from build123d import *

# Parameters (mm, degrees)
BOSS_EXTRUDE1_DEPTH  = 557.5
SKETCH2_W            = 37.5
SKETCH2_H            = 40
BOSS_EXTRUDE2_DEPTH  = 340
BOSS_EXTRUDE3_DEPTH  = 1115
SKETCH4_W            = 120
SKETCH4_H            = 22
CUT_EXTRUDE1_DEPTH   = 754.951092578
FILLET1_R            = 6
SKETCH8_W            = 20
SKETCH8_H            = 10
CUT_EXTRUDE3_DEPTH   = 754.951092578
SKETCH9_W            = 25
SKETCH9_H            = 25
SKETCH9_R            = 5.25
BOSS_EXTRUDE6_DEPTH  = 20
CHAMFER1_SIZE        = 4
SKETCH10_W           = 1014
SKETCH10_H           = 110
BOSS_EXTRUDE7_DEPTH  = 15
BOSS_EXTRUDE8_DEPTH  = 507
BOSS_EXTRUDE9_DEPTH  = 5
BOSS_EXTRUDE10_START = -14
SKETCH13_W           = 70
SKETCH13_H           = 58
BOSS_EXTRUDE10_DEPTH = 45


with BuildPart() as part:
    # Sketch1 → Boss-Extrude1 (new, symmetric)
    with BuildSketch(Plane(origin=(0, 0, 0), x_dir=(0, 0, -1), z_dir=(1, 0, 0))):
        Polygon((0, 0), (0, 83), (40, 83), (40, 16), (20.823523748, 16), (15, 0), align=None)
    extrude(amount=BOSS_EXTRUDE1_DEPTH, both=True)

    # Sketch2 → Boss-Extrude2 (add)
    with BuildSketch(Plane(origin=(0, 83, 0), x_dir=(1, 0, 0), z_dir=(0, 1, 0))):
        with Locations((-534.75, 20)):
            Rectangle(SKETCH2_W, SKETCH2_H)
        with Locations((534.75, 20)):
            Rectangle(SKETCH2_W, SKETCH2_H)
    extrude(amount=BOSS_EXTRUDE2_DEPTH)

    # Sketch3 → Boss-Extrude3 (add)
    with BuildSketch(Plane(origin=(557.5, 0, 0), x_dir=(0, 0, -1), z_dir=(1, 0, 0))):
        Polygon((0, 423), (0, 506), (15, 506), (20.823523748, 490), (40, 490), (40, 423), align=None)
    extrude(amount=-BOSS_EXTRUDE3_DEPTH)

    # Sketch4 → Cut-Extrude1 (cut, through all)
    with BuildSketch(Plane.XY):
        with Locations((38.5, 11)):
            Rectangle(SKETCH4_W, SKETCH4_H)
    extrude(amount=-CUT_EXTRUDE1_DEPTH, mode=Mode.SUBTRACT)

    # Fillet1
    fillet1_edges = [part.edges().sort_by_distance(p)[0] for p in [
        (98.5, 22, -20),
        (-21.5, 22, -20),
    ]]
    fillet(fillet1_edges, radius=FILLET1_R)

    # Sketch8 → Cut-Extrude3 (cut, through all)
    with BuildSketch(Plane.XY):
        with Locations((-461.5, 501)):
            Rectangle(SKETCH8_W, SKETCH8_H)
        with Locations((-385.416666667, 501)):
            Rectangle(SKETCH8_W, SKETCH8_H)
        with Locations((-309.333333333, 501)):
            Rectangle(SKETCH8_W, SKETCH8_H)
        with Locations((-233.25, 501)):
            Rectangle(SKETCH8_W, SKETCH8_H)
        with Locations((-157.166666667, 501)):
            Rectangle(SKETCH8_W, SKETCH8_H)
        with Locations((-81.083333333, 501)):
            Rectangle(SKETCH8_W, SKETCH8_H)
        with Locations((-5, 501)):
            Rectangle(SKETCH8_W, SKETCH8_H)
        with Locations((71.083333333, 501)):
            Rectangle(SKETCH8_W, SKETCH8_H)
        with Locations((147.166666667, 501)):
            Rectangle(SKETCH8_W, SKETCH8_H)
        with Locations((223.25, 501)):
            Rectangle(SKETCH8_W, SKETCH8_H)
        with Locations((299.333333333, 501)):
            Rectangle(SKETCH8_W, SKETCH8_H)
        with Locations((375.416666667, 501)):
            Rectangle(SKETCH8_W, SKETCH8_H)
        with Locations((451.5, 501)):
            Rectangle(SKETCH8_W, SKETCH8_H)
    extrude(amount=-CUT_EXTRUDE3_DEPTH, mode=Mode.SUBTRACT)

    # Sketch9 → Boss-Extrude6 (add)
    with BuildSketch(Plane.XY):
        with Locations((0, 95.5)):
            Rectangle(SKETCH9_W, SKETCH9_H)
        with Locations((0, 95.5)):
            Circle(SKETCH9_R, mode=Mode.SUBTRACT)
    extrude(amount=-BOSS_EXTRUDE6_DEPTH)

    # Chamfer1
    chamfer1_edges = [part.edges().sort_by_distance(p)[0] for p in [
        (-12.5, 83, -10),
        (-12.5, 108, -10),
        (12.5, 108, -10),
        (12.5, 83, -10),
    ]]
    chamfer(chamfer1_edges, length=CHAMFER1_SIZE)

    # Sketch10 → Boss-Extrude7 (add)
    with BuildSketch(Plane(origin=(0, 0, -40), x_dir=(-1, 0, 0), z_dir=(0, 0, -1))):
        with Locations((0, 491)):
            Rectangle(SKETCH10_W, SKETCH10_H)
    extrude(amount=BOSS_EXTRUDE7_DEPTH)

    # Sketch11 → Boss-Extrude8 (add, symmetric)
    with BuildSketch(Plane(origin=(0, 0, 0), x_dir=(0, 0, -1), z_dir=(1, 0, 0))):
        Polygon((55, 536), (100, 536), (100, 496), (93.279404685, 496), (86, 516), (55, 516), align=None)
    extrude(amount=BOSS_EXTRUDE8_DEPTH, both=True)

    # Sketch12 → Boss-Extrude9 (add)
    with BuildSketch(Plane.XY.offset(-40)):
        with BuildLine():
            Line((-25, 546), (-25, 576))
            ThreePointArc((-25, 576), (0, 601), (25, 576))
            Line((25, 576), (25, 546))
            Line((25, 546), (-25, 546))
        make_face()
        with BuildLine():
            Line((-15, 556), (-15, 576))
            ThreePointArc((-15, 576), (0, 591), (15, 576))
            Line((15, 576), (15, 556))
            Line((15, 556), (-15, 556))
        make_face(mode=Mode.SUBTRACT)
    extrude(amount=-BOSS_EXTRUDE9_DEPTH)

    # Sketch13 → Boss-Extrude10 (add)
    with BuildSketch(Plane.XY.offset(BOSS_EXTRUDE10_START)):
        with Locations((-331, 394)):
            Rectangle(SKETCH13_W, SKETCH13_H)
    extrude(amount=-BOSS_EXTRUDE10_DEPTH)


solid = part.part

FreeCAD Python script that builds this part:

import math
import FreeCAD as App
import Part
import Sketcher
Q = App.Units.Quantity


def edges_at(feature, points):
    """Names of the edges that pass closest to the given points."""
    edges = feature.Shape.Edges
    near = lambda p: min(range(len(edges)), key=lambda i: edges[i].distToShape(Part.Vertex(*p))[0])
    return sorted({f"Edge{near(p) + 1}" for p in points})


def add_polygon(sketch, points):
    """Adds a closed chain of lines whose ends are joined by coincident constraints."""
    first, n = sketch.GeometryCount, len(points)
    for a, b in zip(points, points[1:] + points[:1]):
        sketch.addGeometry(Part.LineSegment(App.Vector(*a, 0), App.Vector(*b, 0)), False)
    for i in range(n):
        sketch.addConstraint(Sketcher.Constraint("Coincident", first + i, 2, first + (i + 1) % n, 1))

doc = App.newDocument("Part")
body = doc.addObject("PartDesign::Body", "Body")

# Sketch on YZ plane
sketch1 = body.newObject("Sketcher::SketchObject", "Sketch")
sketch1.AttachmentSupport = (doc.getObject("YZ_Plane"), [""])
sketch1.MapMode = "FlatFace"
add_polygon(sketch1, [(83, 0), (0, 0), (0, -15), (16, -21), (16, -40), (83, -40)])  # lines 0-5
sketch1.addConstraint(Sketcher.Constraint("Horizontal", 0))
sketch1.addConstraint(Sketcher.Constraint("Vertical", 1))
sketch1.addConstraint(Sketcher.Constraint("Vertical", 3))
sketch1.addConstraint(Sketcher.Constraint("Horizontal", 4))
sketch1.addConstraint(Sketcher.Constraint("Vertical", 5))
sketch1.addConstraint(Sketcher.Constraint("Coincident", 0, 2, -1, 1))
sketch1.addConstraint(Sketcher.Constraint("DistanceX", 0, 2, 0, 1, Q("83 mm")))
sketch1.addConstraint(Sketcher.Constraint("DistanceX", 4, 1, 4, 2, Q("67 mm")))
sketch1.addConstraint(Sketcher.Constraint("DistanceY", 1, 2, 1, 1, Q("15 mm")))
sketch1.addConstraint(Sketcher.Constraint("DistanceY", 5, 1, 5, 2, Q("40 mm")))
sketch1.addConstraint(Sketcher.Constraint("Angle", 2, Q("-20 deg")))
pad1 = body.newObject("PartDesign::Pad", "Pad")
pad1.Profile = sketch1
pad1.Length = 1115
pad1.Midplane = True

# Sketch on XZ plane
sketch2 = body.newObject("Sketcher::SketchObject", "Sketch001")
sketch2.AttachmentSupport = (doc.getObject("XZ_Plane"), [""])
sketch2.MapMode = "FlatFace"
sketch2.AttachmentOffset = App.Placement(App.Vector(0, 0, -83), App.Rotation())
add_polygon(sketch2, [(-554, -40), (-554, 0), (-516, 0), (-516, -40)])  # lines 0-3
add_polygon(sketch2, [(516, -40), (516, 0), (554, 0), (554, -40)])  # lines 4-7
sketch2.addConstraint(Sketcher.Constraint("Vertical", 0))
sketch2.addConstraint(Sketcher.Constraint("Horizontal", 1))
sketch2.addConstraint(Sketcher.Constraint("Vertical", 2))
sketch2.addConstraint(Sketcher.Constraint("Horizontal", 3))
sketch2.addConstraint(Sketcher.Constraint("Vertical", 4))
sketch2.addConstraint(Sketcher.Constraint("Horizontal", 5))
sketch2.addConstraint(Sketcher.Constraint("Vertical", 6))
sketch2.addConstraint(Sketcher.Constraint("Horizontal", 7))
sketch2.addConstraint(Sketcher.Constraint("Symmetric", 1, 2, 4, 2, -1, 1))
sketch2.addConstraint(Sketcher.Constraint("Symmetric", 0, 2, 5, 2, -2))
sketch2.addConstraint(Sketcher.Constraint("Horizontal", 3, 2, 6, 2))
sketch2.addConstraint(Sketcher.Constraint("DistanceY", 0, 1, 0, 2, Q("40 mm")))
sketch2.addConstraint(Sketcher.Constraint("DistanceX", 1, 1, 1, 2, Q("37.5 mm")))
sketch2.addConstraint(Sketcher.Constraint("DistanceX", 1, 2, -1, 1, Q("516 mm")))
pad2 = body.newObject("PartDesign::Pad", "Pad001")
pad2.Profile = sketch2
pad2.Length = 340
pad2.Reversed = True

# Sketch on YZ plane
sketch3 = body.newObject("Sketcher::SketchObject", "Sketch002")
sketch3.AttachmentSupport = (doc.getObject("YZ_Plane"), [""])
sketch3.MapMode = "FlatFace"
sketch3.AttachmentOffset = App.Placement(App.Vector(0, 0, 557.5), App.Rotation())
add_polygon(sketch3, [(506, 0), (423, 0), (423, -40), (490, -40), (490, -21), (506, -15)])  # lines 0-5
sketch3.addConstraint(Sketcher.Constraint("Horizontal", 0))
sketch3.addConstraint(Sketcher.Constraint("Vertical", 1))
sketch3.addConstraint(Sketcher.Constraint("Horizontal", 2))
sketch3.addConstraint(Sketcher.Constraint("Vertical", 3))
sketch3.addConstraint(Sketcher.Constraint("Vertical", 5))
sketch3.addConstraint(Sketcher.Constraint("PointOnObject", 0, 2, -1))
sketch3.addConstraint(Sketcher.Constraint("DistanceX", 0, 2, 0, 1, Q("83 mm")))
sketch3.addConstraint(Sketcher.Constraint("DistanceX", 2, 1, 2, 2, Q("67 mm")))
sketch3.addConstraint(Sketcher.Constraint("DistanceY", 1, 2, 1, 1, Q("40 mm")))
sketch3.addConstraint(Sketcher.Constraint("DistanceY", 5, 1, 5, 2, Q("15 mm")))
sketch3.addConstraint(Sketcher.Constraint("Angle", 4, Q("20 deg")))
sketch3.addConstraint(Sketcher.Constraint("DistanceX", -1, 1, 0, 2, Q("423 mm")))
pad3 = body.newObject("PartDesign::Pad", "Pad002")
pad3.Profile = sketch3
pad3.Length = 1115
pad3.Reversed = True

# Sketch on XY plane
sketch4 = body.newObject("Sketcher::SketchObject", "Sketch003")
sketch4.AttachmentSupport = (doc.getObject("XY_Plane"), [""])
sketch4.MapMode = "FlatFace"
add_polygon(sketch4, [(-22, 22), (-22, 0), (98, 0), (98, 22)])  # lines 0-3
sketch4.addConstraint(Sketcher.Constraint("Vertical", 0))
sketch4.addConstraint(Sketcher.Constraint("Horizontal", 1))
sketch4.addConstraint(Sketcher.Constraint("Vertical", 2))
sketch4.addConstraint(Sketcher.Constraint("Horizontal", 3))
sketch4.addConstraint(Sketcher.Constraint("PointOnObject", 0, 2, -1))
sketch4.addConstraint(Sketcher.Constraint("DistanceX", 1, 1, 1, 2, Q("120 mm")))
sketch4.addConstraint(Sketcher.Constraint("DistanceY", 0, 2, 0, 1, Q("22 mm")))
sketch4.addConstraint(Sketcher.Constraint("DistanceX", 0, 2, -1, 1, Q("21.5 mm")))
pocket1 = body.newObject("PartDesign::Pocket", "Pocket")
pocket1.Profile = sketch4
pocket1.Type = "ThroughAll"
doc.recompute()

fillet = body.newObject("PartDesign::Fillet", "Fillet")
fillet.Base = (pocket1, edges_at(pocket1, [(98.5, 22, -20), (-21.5, 22, -20)]))
fillet.Radius = 6

# Sketch on XY plane
sketch5 = body.newObject("Sketcher::SketchObject", "Sketch004")
sketch5.AttachmentSupport = (doc.getObject("XY_Plane"), [""])
sketch5.MapMode = "FlatFace"
add_polygon(sketch5, [(-472, 506), (-472, 496), (-452, 496), (-452, 506)])  # lines 0-3
add_polygon(sketch5, [(-395, 506), (-395, 496), (-375, 496), (-375, 506)])  # lines 4-7
add_polygon(sketch5, [(-319, 506), (-319, 496), (-299, 496), (-299, 506)])  # lines 8-11
add_polygon(sketch5, [(-243, 506), (-243, 496), (-223, 496), (-223, 506)])  # lines 12-15
add_polygon(sketch5, [(-167, 506), (-167, 496), (-147, 496), (-147, 506)])  # lines 16-19
add_polygon(sketch5, [(-91, 506), (-91, 496), (-71, 496), (-71, 506)])  # lines 20-23
add_polygon(sketch5, [(-15, 506), (-15, 496), (5, 496), (5, 506)])  # lines 24-27
add_polygon(sketch5, [(61, 506), (61, 496), (81, 496), (81, 506)])  # lines 28-31
add_polygon(sketch5, [(137, 506), (137, 496), (157, 496), (157, 506)])  # lines 32-35
add_polygon(sketch5, [(213, 506), (213, 496), (233, 496), (233, 506)])  # lines 36-39
add_polygon(sketch5, [(289, 506), (289, 496), (309, 496), (309, 506)])  # lines 40-43
add_polygon(sketch5, [(365, 506), (365, 496), (385, 496), (385, 506)])  # lines 44-47
add_polygon(sketch5, [(442, 506), (442, 496), (462, 496), (462, 506)])  # lines 48-51
sketch5.addConstraint(Sketcher.Constraint("Vertical", 0))
sketch5.addConstraint(Sketcher.Constraint("Horizontal", 1))
sketch5.addConstraint(Sketcher.Constraint("Vertical", 2))
sketch5.addConstraint(Sketcher.Constraint("Horizontal", 3))
sketch5.addConstraint(Sketcher.Constraint("Vertical", 4))
sketch5.addConstraint(Sketcher.Constraint("Horizontal", 5))
sketch5.addConstraint(Sketcher.Constraint("Vertical", 6))
sketch5.addConstraint(Sketcher.Constraint("Horizontal", 7))
sketch5.addConstraint(Sketcher.Constraint("Vertical", 8))
sketch5.addConstraint(Sketcher.Constraint("Horizontal", 9))
sketch5.addConstraint(Sketcher.Constraint("Vertical", 10))
sketch5.addConstraint(Sketcher.Constraint("Horizontal", 11))
sketch5.addConstraint(Sketcher.Constraint("Vertical", 12))
sketch5.addConstraint(Sketcher.Constraint("Horizontal", 13))
sketch5.addConstraint(Sketcher.Constraint("Vertical", 14))
sketch5.addConstraint(Sketcher.Constraint("Horizontal", 15))
sketch5.addConstraint(Sketcher.Constraint("Vertical", 16))
sketch5.addConstraint(Sketcher.Constraint("Horizontal", 17))
sketch5.addConstraint(Sketcher.Constraint("Vertical", 18))
sketch5.addConstraint(Sketcher.Constraint("Horizontal", 19))
sketch5.addConstraint(Sketcher.Constraint("Vertical", 20))
sketch5.addConstraint(Sketcher.Constraint("Horizontal", 21))
sketch5.addConstraint(Sketcher.Constraint("Vertical", 22))
sketch5.addConstraint(Sketcher.Constraint("Horizontal", 23))
sketch5.addConstraint(Sketcher.Constraint("Vertical", 24))
sketch5.addConstraint(Sketcher.Constraint("Horizontal", 25))
sketch5.addConstraint(Sketcher.Constraint("Vertical", 26))
sketch5.addConstraint(Sketcher.Constraint("Horizontal", 27))
sketch5.addConstraint(Sketcher.Constraint("Vertical", 28))
sketch5.addConstraint(Sketcher.Constraint("Horizontal", 29))
sketch5.addConstraint(Sketcher.Constraint("Vertical", 30))
sketch5.addConstraint(Sketcher.Constraint("Horizontal", 31))
sketch5.addConstraint(Sketcher.Constraint("Vertical", 32))
sketch5.addConstraint(Sketcher.Constraint("Horizontal", 33))
sketch5.addConstraint(Sketcher.Constraint("Vertical", 34))
sketch5.addConstraint(Sketcher.Constraint("Horizontal", 35))
sketch5.addConstraint(Sketcher.Constraint("Vertical", 36))
sketch5.addConstraint(Sketcher.Constraint("Horizontal", 37))
sketch5.addConstraint(Sketcher.Constraint("Vertical", 38))
sketch5.addConstraint(Sketcher.Constraint("Horizontal", 39))
sketch5.addConstraint(Sketcher.Constraint("Vertical", 40))
sketch5.addConstraint(Sketcher.Constraint("Horizontal", 41))
sketch5.addConstraint(Sketcher.Constraint("Vertical", 42))
sketch5.addConstraint(Sketcher.Constraint("Horizontal", 43))
sketch5.addConstraint(Sketcher.Constraint("Vertical", 44))
sketch5.addConstraint(Sketcher.Constraint("Horizontal", 45))
sketch5.addConstraint(Sketcher.Constraint("Vertical", 46))
sketch5.addConstraint(Sketcher.Constraint("Horizontal", 47))
sketch5.addConstraint(Sketcher.Constraint("Vertical", 48))
sketch5.addConstraint(Sketcher.Constraint("Horizontal", 49))
sketch5.addConstraint(Sketcher.Constraint("Vertical", 50))
sketch5.addConstraint(Sketcher.Constraint("Horizontal", 51))
sketch5.addConstraint(Sketcher.Constraint("Horizontal", 1, 2, 4, 2))
sketch5.addConstraint(Sketcher.Constraint("Horizontal", 3, 2, 6, 2))
sketch5.addConstraint(Sketcher.Constraint("Horizontal", 5, 2, 8, 2))
sketch5.addConstraint(Sketcher.Constraint("Horizontal", 7, 2, 10, 2))
sketch5.addConstraint(Sketcher.Constraint("Horizontal", 9, 2, 12, 2))
sketch5.addConstraint(Sketcher.Constraint("Horizontal", 11, 2, 14, 2))
sketch5.addConstraint(Sketcher.Constraint("Horizontal", 13, 2, 16, 2))
sketch5.addConstraint(Sketcher.Constraint("Horizontal", 15, 2, 18, 2))
sketch5.addConstraint(Sketcher.Constraint("Horizontal", 17, 2, 20, 2))
sketch5.addConstraint(Sketcher.Constraint("Horizontal", 19, 2, 22, 2))
sketch5.addConstraint(Sketcher.Constraint("Horizontal", 21, 2, 24, 2))
sketch5.addConstraint(Sketcher.Constraint("Horizontal", 23, 2, 26, 2))
sketch5.addConstraint(Sketcher.Constraint("Horizontal", 25, 2, 28, 2))
sketch5.addConstraint(Sketcher.Constraint("Horizontal", 27, 2, 30, 2))
sketch5.addConstraint(Sketcher.Constraint("Horizontal", 29, 2, 32, 2))
sketch5.addConstraint(Sketcher.Constraint("Horizontal", 31, 2, 34, 2))
sketch5.addConstraint(Sketcher.Constraint("Horizontal", 33, 2, 36, 2))
sketch5.addConstraint(Sketcher.Constraint("Horizontal", 35, 2, 38, 2))
sketch5.addConstraint(Sketcher.Constraint("Horizontal", 37, 2, 40, 2))
sketch5.addConstraint(Sketcher.Constraint("Horizontal", 39, 2, 42, 2))
sketch5.addConstraint(Sketcher.Constraint("Horizontal", 41, 2, 44, 2))
sketch5.addConstraint(Sketcher.Constraint("Horizontal", 43, 2, 46, 2))
sketch5.addConstraint(Sketcher.Constraint("Horizontal", 45, 2, 48, 2))
sketch5.addConstraint(Sketcher.Constraint("Horizontal", 47, 2, 50, 2))
sketch5.addConstraint(Sketcher.Constraint("Equal", 3, 5))
sketch5.addConstraint(Sketcher.Constraint("Equal", 7, 9))
sketch5.addConstraint(Sketcher.Constraint("Equal", 11, 13))
sketch5.addConstraint(Sketcher.Constraint("Equal", 15, 17))
sketch5.addConstraint(Sketcher.Constraint("Equal", 19, 21))
sketch5.addConstraint(Sketcher.Constraint("Equal", 23, 25))
sketch5.addConstraint(Sketcher.Constraint("Equal", 27, 29))
sketch5.addConstraint(Sketcher.Constraint("Equal", 31, 33))
sketch5.addConstraint(Sketcher.Constraint("Equal", 35, 37))
sketch5.addConstraint(Sketcher.Constraint("Equal", 39, 41))
sketch5.addConstraint(Sketcher.Constraint("Equal", 43, 45))
sketch5.addConstraint(Sketcher.Constraint("Equal", 47, 49))
sketch5.addConstraint(Sketcher.Constraint("DistanceX", 1, 1, 1, 2, Q("20 mm")))
sketch5.addConstraint(Sketcher.Constraint("DistanceY", 0, 2, 0, 1, Q("10 mm")))
sketch5.addConstraint(Sketcher.Constraint("DistanceY", -1, 1, 0, 2, Q("496 mm")))
sketch5.addConstraint(Sketcher.Constraint("DistanceX", 24, 2, -1, 1, Q("15 mm")))
sketch5.addConstraint(Sketcher.Constraint("DistanceX", 0, 2, -1, 1, Q("471.5 mm")))
sketch5.addConstraint(Sketcher.Constraint("DistanceX", -1, 1, 48, 2, Q("441.5 mm")))
sketch5.addConstraint(Sketcher.Constraint("DistanceX", 12, 2, -1, 1, Q("243.25 mm")))
sketch5.addConstraint(Sketcher.Constraint("DistanceX", -1, 1, 36, 2, Q("213.25 mm")))
sketch5.addConstraint(Sketcher.Constraint("DistanceX", 4, 2, -1, 1, Q("395.416667 mm")))
sketch5.addConstraint(Sketcher.Constraint("DistanceX", 8, 2, -1, 1, Q("319.333333 mm")))
sketch5.addConstraint(Sketcher.Constraint("DistanceX", 16, 2, -1, 1, Q("167.166667 mm")))
sketch5.addConstraint(Sketcher.Constraint("DistanceX", 20, 2, -1, 1, Q("91.083333 mm")))
sketch5.addConstraint(Sketcher.Constraint("DistanceX", -1, 1, 28, 2, Q("61.083333 mm")))
sketch5.addConstraint(Sketcher.Constraint("DistanceX", -1, 1, 32, 2, Q("137.166667 mm")))
sketch5.addConstraint(Sketcher.Constraint("DistanceX", -1, 1, 40, 2, Q("289.333333 mm")))
sketch5.addConstraint(Sketcher.Constraint("DistanceX", -1, 1, 44, 2, Q("365.416667 mm")))
pocket2 = body.newObject("PartDesign::Pocket", "Pocket001")
pocket2.Profile = sketch5
pocket2.Type = "ThroughAll"

# Sketch on XY plane
sketch6 = body.newObject("Sketcher::SketchObject", "Sketch005")
sketch6.AttachmentSupport = (doc.getObject("XY_Plane"), [""])
sketch6.MapMode = "FlatFace"
add_polygon(sketch6, [(-12, 108), (-12, 83), (12, 83), (12, 108)])  # lines 0-3
sketch6.addGeometry(Part.Circle(App.Vector(0, 96, 0), App.Vector(0, 0, 1), 5), False)  # 4
sketch6.addConstraint(Sketcher.Constraint("Vertical", 0))
sketch6.addConstraint(Sketcher.Constraint("Horizontal", 1))
sketch6.addConstraint(Sketcher.Constraint("Vertical", 2))
sketch6.addConstraint(Sketcher.Constraint("Horizontal", 3))
sketch6.addConstraint(Sketcher.Constraint("PointOnObject", 4, 3, -2))
sketch6.addConstraint(Sketcher.Constraint("Equal", 3, 0))
sketch6.addConstraint(Sketcher.Constraint("Diameter", 4, Q("10.5 mm")))
sketch6.addConstraint(Sketcher.Constraint("DistanceX", 1, 1, 1, 2, Q("25 mm")))
sketch6.addConstraint(Sketcher.Constraint("DistanceY", -1, 1, 0, 2, Q("83 mm")))
sketch6.addConstraint(Sketcher.Constraint("DistanceY", -1, 1, 4, 3, Q("95.5 mm")))
sketch6.addConstraint(Sketcher.Constraint("DistanceX", 0, 2, -1, 1, Q("12.5 mm")))
pad4 = body.newObject("PartDesign::Pad", "Pad003")
pad4.Profile = sketch6
pad4.Length = 20
pad4.Reversed = True
doc.recompute()

chamfer = body.newObject("PartDesign::Chamfer", "Chamfer")
chamfer.Base = (pad4, edges_at(pad4, [
    (-12.5, 83, -10),
    (-12.5, 108, -10),
    (12.5, 108, -10),
    (12.5, 83, -10),
]))
chamfer.Size = 4

# Sketch on XY plane
sketch7 = body.newObject("Sketcher::SketchObject", "Sketch006")
sketch7.AttachmentSupport = (doc.getObject("XY_Plane"), [""])
sketch7.MapMode = "FlatFace"
sketch7.AttachmentOffset = App.Placement(App.Vector(0, 0, -40), App.Rotation())
add_polygon(sketch7, [(507, 546), (507, 436), (-507, 436), (-507, 546)])  # lines 0-3
sketch7.addConstraint(Sketcher.Constraint("Vertical", 0))
sketch7.addConstraint(Sketcher.Constraint("Horizontal", 1))
sketch7.addConstraint(Sketcher.Constraint("Vertical", 2))
sketch7.addConstraint(Sketcher.Constraint("Horizontal", 3))
sketch7.addConstraint(Sketcher.Constraint("DistanceX", 1, 2, 1, 1, Q("1014 mm")))
sketch7.addConstraint(Sketcher.Constraint("DistanceY", 0, 2, 0, 1, Q("110 mm")))
sketch7.addConstraint(Sketcher.Constraint("DistanceX", -1, 1, 0, 2, Q("507 mm")))
sketch7.addConstraint(Sketcher.Constraint("DistanceY", -1, 1, 0, 2, Q("436 mm")))
pad5 = body.newObject("PartDesign::Pad", "Pad004")
pad5.Profile = sketch7
pad5.Length = 15
pad5.Reversed = True

# Sketch on YZ plane
sketch8 = body.newObject("Sketcher::SketchObject", "Sketch007")
sketch8.AttachmentSupport = (doc.getObject("YZ_Plane"), [""])
sketch8.MapMode = "FlatFace"
add_polygon(sketch8, [(536, -100), (536, -55), (516, -55), (516, -86), (496, -93), (496, -100)])  # lines 0-5
sketch8.addConstraint(Sketcher.Constraint("Vertical", 0))
sketch8.addConstraint(Sketcher.Constraint("Horizontal", 1))
sketch8.addConstraint(Sketcher.Constraint("Vertical", 2))
sketch8.addConstraint(Sketcher.Constraint("Vertical", 4))
sketch8.addConstraint(Sketcher.Constraint("Horizontal", 5))
sketch8.addConstraint(Sketcher.Constraint("DistanceX", 1, 2, 1, 1, Q("20 mm")))
sketch8.addConstraint(Sketcher.Constraint("DistanceX", 5, 1, 5, 2, Q("40 mm")))
sketch8.addConstraint(Sketcher.Constraint("DistanceY", 0, 1, 0, 2, Q("45 mm")))
sketch8.addConstraint(Sketcher.Constraint("DistanceY", 2, 2, 2, 1, Q("31 mm")))
sketch8.addConstraint(Sketcher.Constraint("Angle", 3, Q("-160 deg")))
sketch8.addConstraint(Sketcher.Constraint("DistanceX", -1, 1, 0, 2, Q("536 mm")))
sketch8.addConstraint(Sketcher.Constraint("DistanceY", 0, 2, -1, 1, Q("55 mm")))
pad6 = body.newObject("PartDesign::Pad", "Pad005")
pad6.Profile = sketch8
pad6.Length = 1014
pad6.Midplane = True

# Sketch on XY plane
sketch9 = body.newObject("Sketcher::SketchObject", "Sketch008")
sketch9.AttachmentSupport = (doc.getObject("XY_Plane"), [""])
sketch9.MapMode = "FlatFace"
sketch9.AttachmentOffset = App.Placement(App.Vector(0, 0, -40), App.Rotation())
sketch9.addGeometry(Part.LineSegment(App.Vector(-25, 576, 0), App.Vector(-25, 546, 0)), False)
sketch9.addGeometry(Part.LineSegment(App.Vector(-25, 546, 0), App.Vector(25, 546, 0)), False)
sketch9.addGeometry(Part.LineSegment(App.Vector(25, 546, 0), App.Vector(25, 576, 0)), False)
sketch9.addGeometry(Part.ArcOfCircle(Part.Circle(App.Vector(0, 576, 0), App.Vector(0, 0, 1), 25), math.radians(0), math.radians(180)), False)
sketch9.addGeometry(Part.LineSegment(App.Vector(-15, 556, 0), App.Vector(-15, 576, 0)), False)
sketch9.addGeometry(Part.ArcOfCircle(Part.Circle(App.Vector(0, 576, 0), App.Vector(0, 0, 1), 15), math.radians(0), math.radians(180)), False)
sketch9.addGeometry(Part.LineSegment(App.Vector(15, 576, 0), App.Vector(15, 556, 0)), False)
sketch9.addGeometry(Part.LineSegment(App.Vector(15, 556, 0), App.Vector(-15, 556, 0)), False)
sketch9.addConstraint(Sketcher.Constraint("Coincident", 0, 2, 1, 1))
sketch9.addConstraint(Sketcher.Constraint("Coincident", 1, 2, 2, 1))
sketch9.addConstraint(Sketcher.Constraint("Tangent", 2, 2, 3, 1))
sketch9.addConstraint(Sketcher.Constraint("Tangent", 3, 2, 0, 1))
sketch9.addConstraint(Sketcher.Constraint("Tangent", 4, 2, 5, 2))
sketch9.addConstraint(Sketcher.Constraint("Tangent", 5, 1, 6, 1))
sketch9.addConstraint(Sketcher.Constraint("Coincident", 6, 2, 7, 1))
sketch9.addConstraint(Sketcher.Constraint("Coincident", 7, 2, 4, 1))
sketch9.addConstraint(Sketcher.Constraint("Vertical", 0))
sketch9.addConstraint(Sketcher.Constraint("Horizontal", 1))
sketch9.addConstraint(Sketcher.Constraint("Vertical", 2))
sketch9.addConstraint(Sketcher.Constraint("Vertical", 4))
sketch9.addConstraint(Sketcher.Constraint("Vertical", 6))
sketch9.addConstraint(Sketcher.Constraint("Horizontal", 7))
sketch9.addConstraint(Sketcher.Constraint("Coincident", 5, 3, 3, 3))
sketch9.addConstraint(Sketcher.Constraint("PointOnObject", 3, 3, -2))
sketch9.addConstraint(Sketcher.Constraint("Equal", 7, 0))
sketch9.addConstraint(Sketcher.Constraint("Radius", 3, Q("25 mm")))
sketch9.addConstraint(Sketcher.Constraint("Radius", 5, Q("15 mm")))
sketch9.addConstraint(Sketcher.Constraint("DistanceY", 4, 1, 4, 2, Q("20 mm")))
sketch9.addConstraint(Sketcher.Constraint("DistanceY", -1, 1, 3, 3, Q("576 mm")))
pad7 = body.newObject("PartDesign::Pad", "Pad006")
pad7.Profile = sketch9
pad7.Length = 5
pad7.Reversed = True

# Sketch on XY plane
sketch10 = body.newObject("Sketcher::SketchObject", "Sketch009")
sketch10.AttachmentSupport = (doc.getObject("XY_Plane"), [""])
sketch10.MapMode = "FlatFace"
sketch10.AttachmentOffset = App.Placement(App.Vector(0, 0, -14), App.Rotation())
add_polygon(sketch10, [(-366, 423), (-366, 365), (-296, 365), (-296, 423)])  # lines 0-3
sketch10.addConstraint(Sketcher.Constraint("Vertical", 0))
sketch10.addConstraint(Sketcher.Constraint("Horizontal", 1))
sketch10.addConstraint(Sketcher.Constraint("Vertical", 2))
sketch10.addConstraint(Sketcher.Constraint("Horizontal", 3))
sketch10.addConstraint(Sketcher.Constraint("DistanceX", 1, 1, 1, 2, Q("70 mm")))
sketch10.addConstraint(Sketcher.Constraint("DistanceY", 0, 2, 0, 1, Q("58 mm")))
sketch10.addConstraint(Sketcher.Constraint("DistanceX", 0, 2, -1, 1, Q("366 mm")))
sketch10.addConstraint(Sketcher.Constraint("DistanceY", -1, 1, 0, 2, Q("365 mm")))
pad8 = body.newObject("PartDesign::Pad", "Pad007")
pad8.Profile = sketch10
pad8.Length = 45
pad8.Reversed = True

doc.recompute()
